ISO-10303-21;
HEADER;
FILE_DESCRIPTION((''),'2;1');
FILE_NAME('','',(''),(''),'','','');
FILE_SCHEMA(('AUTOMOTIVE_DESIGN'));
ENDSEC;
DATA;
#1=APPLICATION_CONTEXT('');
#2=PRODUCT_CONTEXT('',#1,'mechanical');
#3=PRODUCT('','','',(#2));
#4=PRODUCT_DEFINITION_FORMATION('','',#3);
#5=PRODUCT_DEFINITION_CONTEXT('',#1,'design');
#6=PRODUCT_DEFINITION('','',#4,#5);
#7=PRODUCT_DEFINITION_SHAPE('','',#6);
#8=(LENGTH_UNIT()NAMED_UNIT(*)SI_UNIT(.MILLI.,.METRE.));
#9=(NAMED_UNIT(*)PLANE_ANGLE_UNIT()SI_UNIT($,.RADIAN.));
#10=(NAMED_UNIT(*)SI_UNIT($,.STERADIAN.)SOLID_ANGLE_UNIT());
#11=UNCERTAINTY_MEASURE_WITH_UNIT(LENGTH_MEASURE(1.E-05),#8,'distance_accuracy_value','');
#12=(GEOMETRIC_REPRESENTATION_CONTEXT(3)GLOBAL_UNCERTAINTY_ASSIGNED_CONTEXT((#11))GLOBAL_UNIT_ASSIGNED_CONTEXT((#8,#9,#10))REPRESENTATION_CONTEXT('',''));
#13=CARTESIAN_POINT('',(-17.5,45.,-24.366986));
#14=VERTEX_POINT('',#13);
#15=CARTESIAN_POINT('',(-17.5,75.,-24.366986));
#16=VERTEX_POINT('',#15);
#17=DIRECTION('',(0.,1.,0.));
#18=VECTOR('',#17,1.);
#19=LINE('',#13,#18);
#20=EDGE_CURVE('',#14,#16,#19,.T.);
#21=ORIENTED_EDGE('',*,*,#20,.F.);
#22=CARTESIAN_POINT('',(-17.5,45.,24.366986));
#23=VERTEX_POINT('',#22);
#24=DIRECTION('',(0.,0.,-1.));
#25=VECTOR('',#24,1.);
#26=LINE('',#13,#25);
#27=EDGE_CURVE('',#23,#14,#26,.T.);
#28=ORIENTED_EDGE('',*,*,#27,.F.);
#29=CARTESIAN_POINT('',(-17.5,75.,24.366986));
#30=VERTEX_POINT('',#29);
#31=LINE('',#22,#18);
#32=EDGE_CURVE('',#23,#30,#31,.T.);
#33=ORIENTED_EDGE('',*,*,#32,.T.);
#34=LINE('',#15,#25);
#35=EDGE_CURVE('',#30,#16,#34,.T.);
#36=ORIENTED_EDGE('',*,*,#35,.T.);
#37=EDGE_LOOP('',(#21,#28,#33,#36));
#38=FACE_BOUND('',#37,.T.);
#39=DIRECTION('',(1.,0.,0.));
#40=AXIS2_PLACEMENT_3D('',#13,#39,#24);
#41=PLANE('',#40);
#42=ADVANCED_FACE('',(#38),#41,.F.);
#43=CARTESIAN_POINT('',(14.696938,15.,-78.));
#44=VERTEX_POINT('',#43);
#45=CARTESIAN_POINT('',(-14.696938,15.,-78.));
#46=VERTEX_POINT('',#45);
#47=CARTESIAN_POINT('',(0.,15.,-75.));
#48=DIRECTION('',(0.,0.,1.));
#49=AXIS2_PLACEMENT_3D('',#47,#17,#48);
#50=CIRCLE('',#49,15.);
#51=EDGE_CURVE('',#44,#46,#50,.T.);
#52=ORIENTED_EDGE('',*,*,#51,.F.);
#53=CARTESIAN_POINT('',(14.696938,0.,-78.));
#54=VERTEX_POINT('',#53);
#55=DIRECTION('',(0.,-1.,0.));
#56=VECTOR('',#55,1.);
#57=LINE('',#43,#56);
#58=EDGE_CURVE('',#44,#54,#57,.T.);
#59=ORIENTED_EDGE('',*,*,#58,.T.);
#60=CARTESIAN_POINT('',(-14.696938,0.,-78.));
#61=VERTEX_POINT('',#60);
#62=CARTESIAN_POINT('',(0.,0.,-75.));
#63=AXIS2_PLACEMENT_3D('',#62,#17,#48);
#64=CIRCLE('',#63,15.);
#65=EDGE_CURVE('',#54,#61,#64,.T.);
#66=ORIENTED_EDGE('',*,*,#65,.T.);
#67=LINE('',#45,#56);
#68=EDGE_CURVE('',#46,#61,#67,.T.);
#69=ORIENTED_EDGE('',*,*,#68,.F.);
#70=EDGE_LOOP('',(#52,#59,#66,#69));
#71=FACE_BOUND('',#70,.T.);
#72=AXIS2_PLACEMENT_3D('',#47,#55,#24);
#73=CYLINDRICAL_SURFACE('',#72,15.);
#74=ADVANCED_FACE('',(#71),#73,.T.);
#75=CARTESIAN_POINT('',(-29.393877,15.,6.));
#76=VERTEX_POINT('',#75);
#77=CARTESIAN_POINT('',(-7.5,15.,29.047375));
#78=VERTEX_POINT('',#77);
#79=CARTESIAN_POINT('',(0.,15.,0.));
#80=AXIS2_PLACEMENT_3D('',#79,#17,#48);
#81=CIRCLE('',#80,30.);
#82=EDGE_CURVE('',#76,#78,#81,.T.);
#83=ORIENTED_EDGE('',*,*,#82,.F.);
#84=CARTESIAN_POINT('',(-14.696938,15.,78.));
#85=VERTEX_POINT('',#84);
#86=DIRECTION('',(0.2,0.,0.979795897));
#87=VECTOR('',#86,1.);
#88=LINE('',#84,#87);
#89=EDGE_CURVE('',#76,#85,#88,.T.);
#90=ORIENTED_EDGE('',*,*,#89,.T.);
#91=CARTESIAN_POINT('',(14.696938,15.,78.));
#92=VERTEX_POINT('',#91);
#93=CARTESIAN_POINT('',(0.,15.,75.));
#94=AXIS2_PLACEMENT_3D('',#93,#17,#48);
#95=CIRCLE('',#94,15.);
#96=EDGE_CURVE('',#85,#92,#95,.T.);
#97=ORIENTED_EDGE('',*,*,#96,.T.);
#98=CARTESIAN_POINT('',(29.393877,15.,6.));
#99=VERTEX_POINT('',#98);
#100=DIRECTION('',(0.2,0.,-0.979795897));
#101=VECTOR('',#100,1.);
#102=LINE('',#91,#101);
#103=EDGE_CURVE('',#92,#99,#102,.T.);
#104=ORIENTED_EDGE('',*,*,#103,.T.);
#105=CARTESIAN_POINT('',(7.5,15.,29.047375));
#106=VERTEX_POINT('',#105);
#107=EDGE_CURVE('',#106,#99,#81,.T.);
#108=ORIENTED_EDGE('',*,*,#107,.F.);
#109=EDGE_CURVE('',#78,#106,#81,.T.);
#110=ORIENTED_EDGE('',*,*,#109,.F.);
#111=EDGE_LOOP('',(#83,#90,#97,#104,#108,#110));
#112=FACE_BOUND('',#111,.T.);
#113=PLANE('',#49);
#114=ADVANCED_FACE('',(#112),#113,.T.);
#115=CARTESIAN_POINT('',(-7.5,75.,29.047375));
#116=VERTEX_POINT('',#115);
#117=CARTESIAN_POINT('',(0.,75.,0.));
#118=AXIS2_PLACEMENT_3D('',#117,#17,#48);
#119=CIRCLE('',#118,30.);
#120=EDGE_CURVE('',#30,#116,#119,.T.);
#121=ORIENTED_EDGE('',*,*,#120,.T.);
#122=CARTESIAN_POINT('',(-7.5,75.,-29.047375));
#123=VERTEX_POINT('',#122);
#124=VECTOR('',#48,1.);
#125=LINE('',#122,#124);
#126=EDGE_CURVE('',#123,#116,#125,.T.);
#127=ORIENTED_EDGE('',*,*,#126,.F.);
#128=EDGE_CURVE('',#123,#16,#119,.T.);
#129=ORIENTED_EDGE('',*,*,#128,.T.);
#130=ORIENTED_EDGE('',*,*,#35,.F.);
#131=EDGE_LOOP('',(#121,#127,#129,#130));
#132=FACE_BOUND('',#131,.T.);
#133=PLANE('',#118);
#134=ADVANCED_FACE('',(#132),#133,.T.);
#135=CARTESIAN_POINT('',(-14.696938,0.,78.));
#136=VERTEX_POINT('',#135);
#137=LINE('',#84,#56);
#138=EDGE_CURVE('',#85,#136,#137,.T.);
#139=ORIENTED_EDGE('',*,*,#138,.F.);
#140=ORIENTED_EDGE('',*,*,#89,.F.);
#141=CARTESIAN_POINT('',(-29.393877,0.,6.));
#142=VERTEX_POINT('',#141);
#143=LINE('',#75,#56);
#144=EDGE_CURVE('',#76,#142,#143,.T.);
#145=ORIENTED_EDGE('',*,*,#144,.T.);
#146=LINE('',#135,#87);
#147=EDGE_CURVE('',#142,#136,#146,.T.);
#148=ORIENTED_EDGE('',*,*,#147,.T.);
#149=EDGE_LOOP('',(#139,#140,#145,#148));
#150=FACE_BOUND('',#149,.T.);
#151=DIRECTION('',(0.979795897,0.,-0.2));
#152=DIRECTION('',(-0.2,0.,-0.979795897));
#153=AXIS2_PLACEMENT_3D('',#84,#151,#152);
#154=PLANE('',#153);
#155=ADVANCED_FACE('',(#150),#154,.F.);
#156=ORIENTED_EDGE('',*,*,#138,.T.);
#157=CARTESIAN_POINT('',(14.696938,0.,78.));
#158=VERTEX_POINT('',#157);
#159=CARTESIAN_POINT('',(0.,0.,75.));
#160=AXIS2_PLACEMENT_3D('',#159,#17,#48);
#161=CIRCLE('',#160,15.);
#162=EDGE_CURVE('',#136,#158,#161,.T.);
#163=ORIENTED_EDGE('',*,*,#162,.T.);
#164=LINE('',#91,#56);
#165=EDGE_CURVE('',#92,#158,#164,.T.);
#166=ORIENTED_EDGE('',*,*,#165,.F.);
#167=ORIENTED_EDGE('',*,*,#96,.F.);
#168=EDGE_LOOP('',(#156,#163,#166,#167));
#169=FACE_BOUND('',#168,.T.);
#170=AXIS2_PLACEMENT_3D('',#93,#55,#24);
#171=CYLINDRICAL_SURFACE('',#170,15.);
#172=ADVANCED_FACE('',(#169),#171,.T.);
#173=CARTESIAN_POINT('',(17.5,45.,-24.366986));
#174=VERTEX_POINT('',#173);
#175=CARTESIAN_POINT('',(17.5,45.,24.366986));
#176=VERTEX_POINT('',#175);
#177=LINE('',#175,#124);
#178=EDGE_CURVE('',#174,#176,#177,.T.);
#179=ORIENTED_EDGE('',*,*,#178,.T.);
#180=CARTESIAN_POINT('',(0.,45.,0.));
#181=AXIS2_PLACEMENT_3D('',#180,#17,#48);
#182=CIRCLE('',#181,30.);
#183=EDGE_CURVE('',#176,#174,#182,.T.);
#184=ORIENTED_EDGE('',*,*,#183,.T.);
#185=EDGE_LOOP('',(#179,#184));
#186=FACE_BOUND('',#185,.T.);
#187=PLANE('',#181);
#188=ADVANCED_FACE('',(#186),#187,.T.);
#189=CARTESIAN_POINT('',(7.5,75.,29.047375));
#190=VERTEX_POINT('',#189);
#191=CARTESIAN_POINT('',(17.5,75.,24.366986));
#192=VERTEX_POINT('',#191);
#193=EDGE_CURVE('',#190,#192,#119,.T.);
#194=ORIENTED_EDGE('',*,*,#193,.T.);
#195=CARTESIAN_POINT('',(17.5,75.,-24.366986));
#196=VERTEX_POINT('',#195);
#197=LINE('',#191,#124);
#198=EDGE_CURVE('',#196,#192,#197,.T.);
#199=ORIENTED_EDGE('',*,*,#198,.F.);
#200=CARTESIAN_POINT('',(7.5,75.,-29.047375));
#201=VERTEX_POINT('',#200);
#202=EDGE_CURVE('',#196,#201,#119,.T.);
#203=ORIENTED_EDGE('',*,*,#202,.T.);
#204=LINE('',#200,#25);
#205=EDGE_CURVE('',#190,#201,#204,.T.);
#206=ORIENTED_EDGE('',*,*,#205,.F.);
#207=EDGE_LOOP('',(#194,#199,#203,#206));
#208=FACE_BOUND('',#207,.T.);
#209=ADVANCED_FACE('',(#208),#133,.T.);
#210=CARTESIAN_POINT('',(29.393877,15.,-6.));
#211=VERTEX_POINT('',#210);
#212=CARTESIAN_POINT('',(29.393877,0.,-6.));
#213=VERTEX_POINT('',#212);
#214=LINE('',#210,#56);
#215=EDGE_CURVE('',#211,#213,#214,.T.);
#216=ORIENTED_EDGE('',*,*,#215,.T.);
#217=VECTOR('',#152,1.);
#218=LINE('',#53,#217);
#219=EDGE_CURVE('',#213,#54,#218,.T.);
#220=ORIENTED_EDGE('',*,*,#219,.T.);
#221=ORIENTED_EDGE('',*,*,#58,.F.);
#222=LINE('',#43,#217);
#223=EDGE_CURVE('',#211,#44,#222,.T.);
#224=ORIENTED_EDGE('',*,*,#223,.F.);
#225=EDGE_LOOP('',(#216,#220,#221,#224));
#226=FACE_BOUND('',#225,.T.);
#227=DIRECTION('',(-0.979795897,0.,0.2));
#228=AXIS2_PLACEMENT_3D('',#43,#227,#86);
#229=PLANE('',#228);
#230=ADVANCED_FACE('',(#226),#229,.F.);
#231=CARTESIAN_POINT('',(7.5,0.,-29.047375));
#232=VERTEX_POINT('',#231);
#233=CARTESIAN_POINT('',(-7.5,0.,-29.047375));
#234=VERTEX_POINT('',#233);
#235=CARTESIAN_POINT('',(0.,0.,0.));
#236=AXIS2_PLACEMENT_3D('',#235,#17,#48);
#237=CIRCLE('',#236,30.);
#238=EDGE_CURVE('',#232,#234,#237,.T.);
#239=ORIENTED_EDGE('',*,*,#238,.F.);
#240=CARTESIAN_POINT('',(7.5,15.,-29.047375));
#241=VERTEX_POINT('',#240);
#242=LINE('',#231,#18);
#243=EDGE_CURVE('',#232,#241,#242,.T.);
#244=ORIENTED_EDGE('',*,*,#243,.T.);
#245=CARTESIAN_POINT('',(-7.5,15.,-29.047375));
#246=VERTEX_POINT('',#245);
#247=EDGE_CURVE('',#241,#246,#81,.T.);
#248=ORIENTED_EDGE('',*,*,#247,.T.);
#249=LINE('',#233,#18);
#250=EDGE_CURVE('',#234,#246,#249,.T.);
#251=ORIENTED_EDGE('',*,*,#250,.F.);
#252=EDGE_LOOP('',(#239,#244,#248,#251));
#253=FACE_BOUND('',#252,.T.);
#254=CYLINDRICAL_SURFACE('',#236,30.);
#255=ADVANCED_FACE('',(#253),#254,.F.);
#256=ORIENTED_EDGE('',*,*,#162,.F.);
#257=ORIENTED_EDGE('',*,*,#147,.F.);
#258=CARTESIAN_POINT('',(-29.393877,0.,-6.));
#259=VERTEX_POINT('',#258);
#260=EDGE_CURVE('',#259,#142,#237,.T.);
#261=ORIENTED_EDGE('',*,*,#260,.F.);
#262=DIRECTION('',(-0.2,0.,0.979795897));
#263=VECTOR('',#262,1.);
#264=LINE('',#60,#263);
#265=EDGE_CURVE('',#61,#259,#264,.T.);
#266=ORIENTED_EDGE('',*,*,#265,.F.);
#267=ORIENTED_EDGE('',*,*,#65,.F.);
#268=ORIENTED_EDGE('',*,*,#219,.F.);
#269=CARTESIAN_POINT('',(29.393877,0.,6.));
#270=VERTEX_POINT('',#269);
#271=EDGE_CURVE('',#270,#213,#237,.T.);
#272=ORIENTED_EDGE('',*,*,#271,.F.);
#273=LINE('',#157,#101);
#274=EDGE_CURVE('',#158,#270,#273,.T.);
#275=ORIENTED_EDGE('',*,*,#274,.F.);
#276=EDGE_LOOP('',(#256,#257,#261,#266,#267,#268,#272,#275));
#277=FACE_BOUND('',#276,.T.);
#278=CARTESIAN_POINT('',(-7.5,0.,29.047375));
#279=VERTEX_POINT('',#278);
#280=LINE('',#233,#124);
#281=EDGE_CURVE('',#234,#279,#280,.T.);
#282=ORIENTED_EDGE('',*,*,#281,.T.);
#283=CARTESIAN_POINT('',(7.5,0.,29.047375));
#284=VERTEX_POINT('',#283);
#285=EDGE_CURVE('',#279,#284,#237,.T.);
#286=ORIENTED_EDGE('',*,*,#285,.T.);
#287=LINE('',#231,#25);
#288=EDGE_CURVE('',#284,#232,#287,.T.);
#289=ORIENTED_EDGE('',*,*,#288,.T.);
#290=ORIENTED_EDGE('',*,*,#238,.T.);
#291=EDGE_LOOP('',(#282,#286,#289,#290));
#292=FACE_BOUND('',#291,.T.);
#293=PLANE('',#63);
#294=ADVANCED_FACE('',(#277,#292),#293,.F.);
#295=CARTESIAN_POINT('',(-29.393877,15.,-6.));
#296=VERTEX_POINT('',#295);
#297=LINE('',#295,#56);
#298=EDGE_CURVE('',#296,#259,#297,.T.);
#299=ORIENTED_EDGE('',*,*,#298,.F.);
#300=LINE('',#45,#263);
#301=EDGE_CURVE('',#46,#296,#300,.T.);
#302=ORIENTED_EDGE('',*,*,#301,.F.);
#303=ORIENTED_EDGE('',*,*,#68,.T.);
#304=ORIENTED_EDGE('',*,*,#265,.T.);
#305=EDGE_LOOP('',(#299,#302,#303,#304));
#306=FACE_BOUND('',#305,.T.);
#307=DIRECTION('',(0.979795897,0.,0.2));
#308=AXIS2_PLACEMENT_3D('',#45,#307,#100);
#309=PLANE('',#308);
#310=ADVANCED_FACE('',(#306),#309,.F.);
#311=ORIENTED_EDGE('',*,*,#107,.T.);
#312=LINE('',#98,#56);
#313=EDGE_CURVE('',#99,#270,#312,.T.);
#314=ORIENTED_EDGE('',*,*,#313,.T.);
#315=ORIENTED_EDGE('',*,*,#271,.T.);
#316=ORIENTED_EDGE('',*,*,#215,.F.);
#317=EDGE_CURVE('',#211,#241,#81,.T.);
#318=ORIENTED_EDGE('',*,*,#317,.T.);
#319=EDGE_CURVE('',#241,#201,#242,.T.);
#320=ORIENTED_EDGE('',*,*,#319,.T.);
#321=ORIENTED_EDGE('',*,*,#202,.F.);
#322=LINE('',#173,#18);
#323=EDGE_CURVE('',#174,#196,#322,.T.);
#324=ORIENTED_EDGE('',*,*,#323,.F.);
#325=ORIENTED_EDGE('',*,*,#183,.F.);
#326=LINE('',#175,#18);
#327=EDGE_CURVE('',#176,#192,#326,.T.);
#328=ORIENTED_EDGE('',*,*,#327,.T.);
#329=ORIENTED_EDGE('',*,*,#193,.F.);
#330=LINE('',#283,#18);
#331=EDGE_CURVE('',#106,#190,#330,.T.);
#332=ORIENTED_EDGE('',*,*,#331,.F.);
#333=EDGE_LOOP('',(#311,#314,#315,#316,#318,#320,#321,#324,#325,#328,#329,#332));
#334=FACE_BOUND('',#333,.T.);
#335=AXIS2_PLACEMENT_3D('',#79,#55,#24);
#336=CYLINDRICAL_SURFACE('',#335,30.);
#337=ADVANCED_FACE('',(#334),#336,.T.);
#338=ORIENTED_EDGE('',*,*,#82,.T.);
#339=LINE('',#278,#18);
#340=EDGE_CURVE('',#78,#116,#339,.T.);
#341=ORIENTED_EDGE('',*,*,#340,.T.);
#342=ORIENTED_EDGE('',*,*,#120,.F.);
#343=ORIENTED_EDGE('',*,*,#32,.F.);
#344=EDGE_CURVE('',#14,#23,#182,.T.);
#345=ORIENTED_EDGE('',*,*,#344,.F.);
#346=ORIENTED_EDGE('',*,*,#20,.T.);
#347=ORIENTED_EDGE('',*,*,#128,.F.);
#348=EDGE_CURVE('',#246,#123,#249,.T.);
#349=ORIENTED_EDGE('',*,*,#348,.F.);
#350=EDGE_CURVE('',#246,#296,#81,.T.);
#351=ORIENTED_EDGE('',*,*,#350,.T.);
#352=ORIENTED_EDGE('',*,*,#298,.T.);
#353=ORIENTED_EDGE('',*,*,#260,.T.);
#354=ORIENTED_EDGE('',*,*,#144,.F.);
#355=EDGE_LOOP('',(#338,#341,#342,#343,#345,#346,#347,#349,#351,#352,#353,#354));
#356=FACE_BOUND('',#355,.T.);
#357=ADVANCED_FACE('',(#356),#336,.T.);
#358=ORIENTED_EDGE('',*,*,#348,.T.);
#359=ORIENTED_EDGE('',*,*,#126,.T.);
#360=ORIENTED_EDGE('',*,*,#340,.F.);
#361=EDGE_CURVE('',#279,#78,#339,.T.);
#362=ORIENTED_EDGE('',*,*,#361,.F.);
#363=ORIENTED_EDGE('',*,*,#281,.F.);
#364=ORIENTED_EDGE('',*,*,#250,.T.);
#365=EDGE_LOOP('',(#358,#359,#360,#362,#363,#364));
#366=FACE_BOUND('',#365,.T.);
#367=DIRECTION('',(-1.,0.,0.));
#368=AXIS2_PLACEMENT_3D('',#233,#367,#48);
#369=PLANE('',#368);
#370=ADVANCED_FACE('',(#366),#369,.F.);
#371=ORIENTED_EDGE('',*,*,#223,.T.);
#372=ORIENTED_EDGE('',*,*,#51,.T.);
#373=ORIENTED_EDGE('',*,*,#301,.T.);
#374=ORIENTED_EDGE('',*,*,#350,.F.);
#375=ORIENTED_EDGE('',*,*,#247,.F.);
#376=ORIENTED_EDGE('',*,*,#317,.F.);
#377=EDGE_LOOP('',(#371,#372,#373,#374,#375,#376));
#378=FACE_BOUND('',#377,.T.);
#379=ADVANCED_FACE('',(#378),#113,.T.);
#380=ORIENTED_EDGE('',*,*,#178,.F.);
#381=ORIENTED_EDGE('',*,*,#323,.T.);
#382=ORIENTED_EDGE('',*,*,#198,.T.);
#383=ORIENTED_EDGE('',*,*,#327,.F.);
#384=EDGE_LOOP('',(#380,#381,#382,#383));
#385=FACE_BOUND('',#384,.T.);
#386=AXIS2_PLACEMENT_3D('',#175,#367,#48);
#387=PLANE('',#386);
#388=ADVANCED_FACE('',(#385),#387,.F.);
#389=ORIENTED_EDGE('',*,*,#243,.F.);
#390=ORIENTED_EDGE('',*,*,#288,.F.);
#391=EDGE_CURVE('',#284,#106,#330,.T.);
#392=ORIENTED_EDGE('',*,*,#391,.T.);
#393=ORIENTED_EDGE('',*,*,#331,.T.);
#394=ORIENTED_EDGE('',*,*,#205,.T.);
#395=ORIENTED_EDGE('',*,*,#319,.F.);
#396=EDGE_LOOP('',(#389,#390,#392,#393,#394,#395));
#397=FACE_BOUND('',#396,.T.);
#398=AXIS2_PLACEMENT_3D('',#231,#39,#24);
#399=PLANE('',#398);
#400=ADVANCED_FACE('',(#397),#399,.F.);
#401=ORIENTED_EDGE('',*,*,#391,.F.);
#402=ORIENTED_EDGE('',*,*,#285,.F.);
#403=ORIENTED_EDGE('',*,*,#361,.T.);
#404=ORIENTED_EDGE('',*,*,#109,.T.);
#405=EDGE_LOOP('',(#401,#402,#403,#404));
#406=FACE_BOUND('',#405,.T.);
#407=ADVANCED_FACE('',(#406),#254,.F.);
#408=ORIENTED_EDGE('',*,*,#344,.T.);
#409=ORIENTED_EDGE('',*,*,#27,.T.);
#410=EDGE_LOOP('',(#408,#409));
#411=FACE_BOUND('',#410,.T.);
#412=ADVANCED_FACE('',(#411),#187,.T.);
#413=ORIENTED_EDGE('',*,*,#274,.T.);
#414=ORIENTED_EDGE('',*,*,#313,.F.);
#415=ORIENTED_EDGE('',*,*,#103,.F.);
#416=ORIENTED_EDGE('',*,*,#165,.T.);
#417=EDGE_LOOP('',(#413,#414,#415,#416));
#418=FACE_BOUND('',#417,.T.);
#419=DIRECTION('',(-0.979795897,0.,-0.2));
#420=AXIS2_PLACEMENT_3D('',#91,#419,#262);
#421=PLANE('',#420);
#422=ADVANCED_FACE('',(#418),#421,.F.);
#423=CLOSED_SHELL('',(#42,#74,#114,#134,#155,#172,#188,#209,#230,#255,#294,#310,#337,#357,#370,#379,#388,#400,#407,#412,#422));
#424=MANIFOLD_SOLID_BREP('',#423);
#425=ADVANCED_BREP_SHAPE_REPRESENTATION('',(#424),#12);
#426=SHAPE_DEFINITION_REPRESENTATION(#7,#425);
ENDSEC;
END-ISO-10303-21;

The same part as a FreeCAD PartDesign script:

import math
import FreeCAD as App
import Part
import Sketcher

V = App.Vector
Q = App.Units.Quantity

doc = App.newDocument("Part")
body = doc.addObject("PartDesign::Body", "Body")

# Sketch on XZ plane
sketch1 = body.newObject("Sketcher::SketchObject", "Sketch")
sketch1.AttachmentSupport = (doc.getObject("XZ_Plane"), [""])
sketch1.MapMode = "FlatFace"
sketch1.addGeometry([
    Part.LineSegment(V(-14.696938, -78, 0), V(-29.393877, -6, 0)),  # 0
    Part.ArcOfCircle(Part.Circle(V(0, 0, 0), V(0, 0, 1), 30), math.radians(168.463041), math.radians(191.536959)),  # 1
    Part.LineSegment(V(-29.393877, 6, 0), V(-14.696938, 78, 0)),  # 2
    Part.ArcOfCircle(Part.Circle(V(0, 75, 0), V(0, 0, 1), 15), math.radians(11.536959), math.radians(168.463041)),  # 3
    Part.LineSegment(V(14.696938, 78, 0), V(29.393877, 6, 0)),  # 4
    Part.ArcOfCircle(Part.Circle(V(0, 0, 0), V(0, 0, 1), 30), math.radians(-11.536959), math.radians(11.536959)),  # 5
    Part.LineSegment(V(29.393877, -6, 0), V(14.696938, -78, 0)),  # 6
    Part.ArcOfCircle(Part.Circle(V(0, -75, 0), V(0, 0, 1), 15), math.radians(-168.463041), math.radians(-11.536959)),  # 7
], False)
sketch1.addConstraint([
    Sketcher.Constraint("Tangent", 0, 2, 1, 2),
    Sketcher.Constraint("Tangent", 1, 1, 2, 1),
    Sketcher.Constraint("Tangent", 2, 2, 3, 2),
    Sketcher.Constraint("Tangent", 3, 1, 4, 1),
    Sketcher.Constraint("Tangent", 4, 2, 5, 2),
    Sketcher.Constraint("Tangent", 5, 1, 6, 1),
    Sketcher.Constraint("Tangent", 6, 2, 7, 2),
    Sketcher.Constraint("Tangent", 7, 1, 0, 1),
    Sketcher.Constraint("Coincident", 1, 3, -1, 1),
    Sketcher.Constraint("Coincident", 5, 3, -1, 1),
    Sketcher.Constraint("Equal", 1, 5),
    Sketcher.Constraint("Equal", 3, 7),
    Sketcher.Constraint("Symmetric", 3, 3, 7, 3, -1, 1),
    Sketcher.Constraint("PointOnObject", 3, 3, -2),
    Sketcher.Constraint("Radius", 1, Q("30 mm")),
    Sketcher.Constraint("Radius", 3, Q("15 mm")),
    Sketcher.Constraint("DistanceY", -1, 1, 3, 3, Q("75 mm")),
])
pad1 = body.newObject("PartDesign::Pad", "Pad")
pad1.Profile = sketch1
pad1.Length = 15
pad1.Reversed = True

# Sketch on XZ plane
sketch2 = body.newObject("Sketcher::SketchObject", "Sketch001")
sketch2.AttachmentSupport = (doc.getObject("XZ_Plane"), [""])
sketch2.MapMode = "FlatFace"
sketch2.AttachmentOffset = App.Placement(V(0, 0, -15), App.Rotation())
sketch2.addGeometry(Part.Circle(V(0, 0, 0), V(0, 0, 1), 30), False)
sketch2.addConstraint([
    Sketcher.Constraint("Coincident", 0, 3, -1, 1),
    Sketcher.Constraint("Diameter", 0, Q("60 mm")),
])
pad2 = body.newObject("PartDesign::Pad", "Pad001")
pad2.Profile = sketch2
pad2.Length = 60
pad2.Reversed = True

# Sketch on XZ plane
sketch3 = body.newObject("Sketcher::SketchObject", "Sketch002")
sketch3.AttachmentSupport = (doc.getObject("XZ_Plane"), [""])
sketch3.MapMode = "FlatFace"
sketch3.AttachmentOffset = App.Placement(V(0, 0, -75), App.Rotation())
sketch3.addGeometry([
    Part.LineSegment(V(-7.5, -29.047375, 0), V(-7.5, 29.047375, 0)),
    Part.ArcOfCircle(Part.Circle(V(0, 0, 0), V(0, 0, 1), 30), math.radians(75.522488), math.radians(104.477512)),
    Part.LineSegment(V(7.5, 29.047375, 0), V(7.5, -29.047375, 0)),
    Part.ArcOfCircle(Part.Circle(V(0, 0, 0), V(0, 0, 1), 30), math.radians(-104.477512), math.radians(-75.522488)),
], False)
sketch3.addConstraint([
    Sketcher.Constraint("Coincident", 0, 2, 1, 2),
    Sketcher.Constraint("Coincident", 1, 1, 2, 1),
    Sketcher.Constraint("Coincident", 2, 2, 3, 2),
    Sketcher.Constraint("Coincident", 3, 1, 0, 1),
    Sketcher.Constraint("Vertical", 0),
    Sketcher.Constraint("Vertical", 2),
    Sketcher.Constraint("Coincident", 1, 3, -1, 1),
    Sketcher.Constraint("Coincident", 3, 3, -1, 1),
    Sketcher.Constraint("Equal", 1, 3),
    Sketcher.Constraint("Horizontal", 0, 2, 1, 1),
    Sketcher.Constraint("Radius", 1, Q("30 mm")),
    Sketcher.Constraint("DistanceX", 0, 2, 1, 1, Q("15 mm")),
])
pocket1 = body.newObject("PartDesign::Pocket", "Pocket")
pocket1.Profile = sketch3
pocket1.Type = "ThroughAll"
pocket1.Reversed = True

# Sketch on XZ plane
sketch4 = body.newObject("Sketcher::SketchObject", "Sketch003")
sketch4.AttachmentSupport = (doc.getObject("XZ_Plane"), [""])
sketch4.MapMode = "FlatFace"
sketch4.AttachmentOffset = App.Placement(V(0, 0, -45), App.Rotation())
sketch4.addGeometry([
    Part.LineSegment(V(-17.5, 24.366986, 0), V(-17.5, -24.366986, 0)),
    Part.ArcOfCircle(Part.Circle(V(0, 0, 0), V(0, 0, 1), 30), math.radians(125.685335), math.radians(234.314665)),
    Part.LineSegment(V(17.5, -24.366986, 0), V(17.5, 24.366986, 0)),
    Part.ArcOfCircle(Part.Circle(V(0, 0, 0), V(0, 0, 1), 30), math.radians(-54.314665), math.radians(54.314665)),
], False)
sketch4.addConstraint([
    Sketcher.Constraint("Coincident", 0, 1, 1, 1),
    Sketcher.Constraint("Coincident", 1, 2, 0, 2),
    Sketcher.Constraint("Coincident", 2, 1, 3, 1),
    Sketcher.Constraint("Coincident", 3, 2, 2, 2),
    Sketcher.Constraint("Vertical", 0),
    Sketcher.Constraint("Vertical", 2),
    Sketcher.Constraint("Coincident", 1, 3, -1, 1),
    Sketcher.Constraint("Coincident", 3, 3, -1, 1),
    Sketcher.Constraint("Equal", 1, 3),
    Sketcher.Constraint("Horizontal", 1, 2, 2, 1),
    Sketcher.Constraint("Radius", 1, Q("30 mm")),
    Sketcher.Constraint("DistanceX", 1, 2, 2, 1, Q("35 mm")),
])
pocket2 = body.newObject("PartDesign::Pocket", "Pocket001")
pocket2.Profile = sketch4
pocket2.Length = 30

doc.recompute()
